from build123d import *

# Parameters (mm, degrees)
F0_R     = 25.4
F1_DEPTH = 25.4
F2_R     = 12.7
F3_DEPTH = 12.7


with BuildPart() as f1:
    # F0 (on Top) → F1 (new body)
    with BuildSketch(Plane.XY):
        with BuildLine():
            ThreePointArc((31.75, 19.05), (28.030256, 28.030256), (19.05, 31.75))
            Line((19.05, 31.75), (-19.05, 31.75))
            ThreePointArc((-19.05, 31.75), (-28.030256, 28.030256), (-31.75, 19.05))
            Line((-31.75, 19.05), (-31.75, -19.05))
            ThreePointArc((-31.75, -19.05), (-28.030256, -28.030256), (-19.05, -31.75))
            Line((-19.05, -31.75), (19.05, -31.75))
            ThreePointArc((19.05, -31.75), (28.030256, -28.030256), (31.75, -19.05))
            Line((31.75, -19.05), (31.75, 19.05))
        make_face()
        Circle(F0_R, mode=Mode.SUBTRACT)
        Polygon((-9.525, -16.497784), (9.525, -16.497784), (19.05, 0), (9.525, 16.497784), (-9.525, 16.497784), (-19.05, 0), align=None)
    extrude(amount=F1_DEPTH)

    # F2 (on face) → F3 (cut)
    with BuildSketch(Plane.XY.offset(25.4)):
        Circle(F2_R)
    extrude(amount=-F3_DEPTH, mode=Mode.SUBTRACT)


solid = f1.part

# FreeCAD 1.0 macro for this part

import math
import FreeCAD as App
import Part
import Sketcher

V = App.Vector
Q = App.Units.Quantity

doc = App.newDocument("Part")
body = doc.addObject("PartDesign::Body", "Body")
body.AllowCompound = True

sketch1 = body.newObject("Sketcher::SketchObject", "Sketch")
sketch1.AttachmentSupport = (doc.getObject("XY_Plane"), [""])
sketch1.MapMode = "FlatFace"
sketch1.addGeometry(Part.ArcOfCircle(Part.Circle(V(19, 19, 0), V(0, 0, 1), 13), math.radians(0), math.radians(90)), False)
sketch1.addGeometry(Part.LineSegment(V(19, 32, 0), V(-19, 32, 0)), False)
sketch1.addGeometry(Part.ArcOfCircle(Part.Circle(V(-19, 19, 0), V(0, 0, 1), 13), math.radians(90), math.radians(180)), False)
sketch1.addGeometry(Part.LineSegment(V(-32, 19, 0), V(-32, -19, 0)), False)
sketch1.addGeometry(Part.ArcOfCircle(Part.Circle(V(-19, -19, 0), V(0, 0, 1), 13), math.radians(-180), math.radians(-90)), False)
sketch1.addGeometry(Part.LineSegment(V(-19, -32, 0), V(19, -32, 0)), False)
sketch1.addGeometry(Part.ArcOfCircle(Part.Circle(V(19, -19, 0), V(0, 0, 1), 13), math.radians(-90), math.radians(0)), False)
sketch1.addGeometry(Part.LineSegment(V(32, -19, 0), V(32, 19, 0)), False)
sketch1.addGeometry(Part.Circle(V(0, 0, 0), V(0, 0, 1), 25), False)
sketch1.addGeometry(Part.LineSegment(V(-10, -16, 0), V(10, -16, 0)), False)
sketch1.addGeometry(Part.LineSegment(V(10, -16, 0), V(19, 0, 0)), False)
sketch1.addGeometry(Part.LineSegment(V(19, 0, 0), V(10, 16, 0)), False)
sketch1.addGeometry(Part.LineSegment(V(10, 16, 0), V(-10, 16, 0)), False)
sketch1.addGeometry(Part.LineSegment(V(-10, 16, 0), V(-19, 0, 0)), False)
sketch1.addGeometry(Part.LineSegment(V(-19, 0, 0), V(-10, -16, 0)), False)
sketch1.addConstraint(Sketcher.Constraint("Tangent", 0, 2, 1, 1))
sketch1.addConstraint(Sketcher.Constraint("Tangent", 1, 2, 2, 1))
sketch1.addConstraint(Sketcher.Constraint("Tangent", 2, 2, 3, 1))
sketch1.addConstraint(Sketcher.Constraint("Tangent", 3, 2, 4, 1))
sketch1.addConstraint(Sketcher.Constraint("Tangent", 4, 2, 5, 1))
sketch1.addConstraint(Sketcher.Constraint("Tangent", 5, 2, 6, 1))
sketch1.addConstraint(Sketcher.Constraint("Tangent", 6, 2, 7, 1))
sketch1.addConstraint(Sketcher.Constraint("Tangent", 7, 2, 0, 1))
sketch1.addConstraint(Sketcher.Constraint("Coincident", 9, 2, 10, 1))
sketch1.addConstraint(Sketcher.Constraint("Coincident", 10, 2, 11, 1))
sketch1.addConstraint(Sketcher.Constraint("Coincident", 11, 2, 12, 1))
sketch1.addConstraint(Sketcher.Constraint("Coincident", 12, 2, 13, 1))
sketch1.addConstraint(Sketcher.Constraint("Coincident", 13, 2, 14, 1))
sketch1.addConstraint(Sketcher.Constraint("Coincident", 14, 2, 9, 1))
sketch1.addConstraint(Sketcher.Constraint("Horizontal", 1))
sketch1.addConstraint(Sketcher.Constraint("Vertical", 3))
sketch1.addConstraint(Sketcher.Constraint("Horizontal", 5))
sketch1.addConstraint(Sketcher.Constraint("Vertical", 7))
sketch1.addConstraint(Sketcher.Constraint("Horizontal", 9))
sketch1.addConstraint(Sketcher.Constraint("Horizontal", 12))
sketch1.addConstraint(Sketcher.Constraint("Coincident", 8, 3, -1, 1))
sketch1.addConstraint(Sketcher.Constraint("Equal", 0, 2))
sketch1.addConstraint(Sketcher.Constraint("Equal", 2, 4))
sketch1.addConstraint(Sketcher.Constraint("Equal", 4, 6))
sketch1.addConstraint(Sketcher.Constraint("Symmetric", 0, 3, 4, 3, -1, 1))
sketch1.addConstraint(Sketcher.Constraint("Symmetric", 9, 2, 12, 2, -1, 1))
sketch1.addConstraint(Sketcher.Constraint("Symmetric", 10, 2, 13, 2, -1, 1))
sketch1.addConstraint(Sketcher.Constraint("PointOnObject", 10, 2, -1))
sketch1.addConstraint(Sketcher.Constraint("Parallel", 11, 14))
sketch1.addConstraint(Sketcher.Constraint("Vertical", 5, 2, 10, 2))
sketch1.addConstraint(Sketcher.Constraint("Vertical", 9, 2, 11, 2))
sketch1.addConstraint(Sketcher.Constraint("Equal", 5, 3))
sketch1.addConstraint(Sketcher.Constraint("Diameter", 8, Q("2 in")))
sketch1.addConstraint(Sketcher.Constraint("Radius", 0, Q("0.5 in")))
sketch1.addConstraint(Sketcher.Constraint("DistanceX", 1, 2, 1, 1, Q("1.5 in")))
sketch1.addConstraint(Sketcher.Constraint("Angle", 10, Q("60 deg")))
sketch1.addConstraint(Sketcher.Constraint("DistanceX", 9, 1, 9, 2, Q("0.75 in")))
pad1 = body.newObject("PartDesign::Pad", "Pad")
pad1.Profile = sketch1
pad1.Length = Q("1 in")

sketch2 = body.newObject("Sketcher::SketchObject", "Sketch001")
sketch2.AttachmentSupport = (doc.getObject("XY_Plane"), [""])
sketch2.MapMode = "FlatFace"
sketch2.AttachmentOffset = App.Placement(V(0, 0, 1 * 25.4), App.Rotation())
sketch2.addGeometry(Part.Circle(V(0, 0, 0), V(0, 0, 1), 13), False)
sketch2.addConstraint(Sketcher.Constraint("Coincident", 0, 3, -1, 1))
sketch2.addConstraint(Sketcher.Constraint("Diameter", 0, Q("1 in")))
pocket1 = body.newObject("PartDesign::Pocket", "Pocket")
pocket1.Profile = sketch2
pocket1.Length = Q("0.5 in")

doc.recompute()
